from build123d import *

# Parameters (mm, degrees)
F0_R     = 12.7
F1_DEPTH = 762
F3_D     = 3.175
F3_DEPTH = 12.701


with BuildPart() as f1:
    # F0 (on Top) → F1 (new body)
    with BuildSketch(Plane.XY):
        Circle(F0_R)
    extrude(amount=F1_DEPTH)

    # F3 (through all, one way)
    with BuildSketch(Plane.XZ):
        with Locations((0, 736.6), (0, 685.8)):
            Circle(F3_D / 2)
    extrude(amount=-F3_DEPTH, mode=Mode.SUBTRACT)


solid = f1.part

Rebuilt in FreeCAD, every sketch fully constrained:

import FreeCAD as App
import Part
import Sketcher

V = App.Vector
Q = App.Units.Quantity

doc = App.newDocument("Part")
body = doc.addObject("PartDesign::Body", "Body")

# Sketch on XY plane
sketch1 = doc.addObject("Sketcher::SketchObject", "Sketch")
body.addObject(sketch1)
sketch1.AttachmentSupport = (doc.XY_Plane, [""])
sketch1.MapMode = "FlatFace"
sketch1.addGeometry(Part.Circle(V(0, 0, 0), V(0, 0, 1), 12.7), False)
sketch1.addConstraint(Sketcher.Constraint("Coincident", 0, 3, -1, 1))
sketch1.addConstraint(Sketcher.Constraint("Diameter", 0, Q("1 in")))
pad1 = doc.addObject("PartDesign::Pad", "Pad")
body.addObject(pad1)
pad1.Profile = sketch1
pad1.Length = Q("30 in")

# Sketch on XZ plane
sketch2 = doc.addObject("Sketcher::SketchObject", "Sketch001")
body.addObject(sketch2)
sketch2.AttachmentSupport = (doc.XZ_Plane, [""])
sketch2.MapMode = "FlatFace"
sketch2.addGeometry(Part.Circle(V(0, 685.8, 0), V(0, 0, 1), 1.5875), False)
sketch2.addGeometry(Part.Circle(V(0, 736.6, 0), V(0, 0, 1), 1.5875), False)
sketch2.addConstraint(Sketcher.Constraint("Equal", 0, 1))
sketch2.addConstraint(Sketcher.Constraint("PointOnObject", 0, 3, -2))
sketch2.addConstraint(Sketcher.Constraint("PointOnObject", 1, 3, -2))
sketch2.addConstraint(Sketcher.Constraint("Diameter", 0, Q("0.125 in")))
sketch2.addConstraint(Sketcher.Constraint("DistanceY", -1, 1, 0, 3, Q("27 in")))
sketch2.addConstraint(Sketcher.Constraint("DistanceY", -1, 1, 1, 3, Q("29 in")))
pocket1 = doc.addObject("PartDesign::Pocket", "Pocket")
body.addObject(pocket1)
pocket1.Profile = sketch2
pocket1.Type = "ThroughAll"

doc.recompute()
